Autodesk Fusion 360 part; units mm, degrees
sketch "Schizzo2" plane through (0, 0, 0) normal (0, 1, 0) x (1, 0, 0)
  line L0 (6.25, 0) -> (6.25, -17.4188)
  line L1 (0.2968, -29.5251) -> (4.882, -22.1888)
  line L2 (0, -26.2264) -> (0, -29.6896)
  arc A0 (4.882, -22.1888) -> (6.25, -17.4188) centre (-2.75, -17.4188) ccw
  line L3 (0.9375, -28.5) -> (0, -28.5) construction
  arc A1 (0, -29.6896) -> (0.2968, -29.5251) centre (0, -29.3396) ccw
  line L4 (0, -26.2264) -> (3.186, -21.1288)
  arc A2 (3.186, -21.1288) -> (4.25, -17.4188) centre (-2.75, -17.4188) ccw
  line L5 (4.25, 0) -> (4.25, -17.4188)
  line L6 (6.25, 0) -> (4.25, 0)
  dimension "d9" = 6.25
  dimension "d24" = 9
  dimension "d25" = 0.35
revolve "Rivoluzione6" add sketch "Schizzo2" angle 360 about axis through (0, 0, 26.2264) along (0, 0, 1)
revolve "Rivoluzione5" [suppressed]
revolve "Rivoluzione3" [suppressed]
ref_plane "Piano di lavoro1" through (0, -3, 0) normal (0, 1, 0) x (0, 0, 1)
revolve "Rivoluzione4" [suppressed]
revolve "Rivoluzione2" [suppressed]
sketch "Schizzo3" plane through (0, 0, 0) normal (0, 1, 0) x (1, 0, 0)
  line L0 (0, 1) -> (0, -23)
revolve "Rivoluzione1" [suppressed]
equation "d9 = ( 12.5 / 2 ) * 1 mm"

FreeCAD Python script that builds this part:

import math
import FreeCAD as App
import Part
import Sketcher
Q = App.Units.Quantity

doc = App.newDocument("Part")
body = doc.addObject("PartDesign::Body", "Body")

# Sketch on XZ plane
sketch1 = body.newObject("Sketcher::SketchObject", "Sketch")
sketch1.AttachmentSupport = (doc.getObject("XZ_Plane"), [""])
sketch1.MapMode = "FlatFace"
sketch1.addGeometry([
    Part.LineSegment(App.Vector(6.25, 17.42, 0), App.Vector(6.25, 0, 0)),  # 0
    Part.LineSegment(App.Vector(6.25, 0, 0), App.Vector(4.25, 0, 0)),  # 1
    Part.LineSegment(App.Vector(4.25, 0, 0), App.Vector(4.25, 17.42, 0)),  # 2
    Part.ArcOfCircle(Part.Circle(App.Vector(-2.75, 17.42, 0), App.Vector(0, 0, 1), 7), math.radians(0), math.radians(32)),  # 3
    Part.LineSegment(App.Vector(3.19, 21.13, 0), App.Vector(0, 26.23, 0)),  # 4
    Part.LineSegment(App.Vector(0, 26.23, 0), App.Vector(0, 29.69, 0)),  # 5
    Part.ArcOfCircle(Part.Circle(App.Vector(0, 29.34, 0), App.Vector(0, 0, 1), 0.35), math.radians(32), math.radians(90)),  # 6
    Part.LineSegment(App.Vector(0.3, 29.53, 0), App.Vector(4.88, 22.19, 0)),  # 7
    Part.ArcOfCircle(Part.Circle(App.Vector(-2.75, 17.42, 0), App.Vector(0, 0, 1), 9), math.radians(0), math.radians(32)),  # 8
], False)
sketch1.addConstraint([
    Sketcher.Constraint("Coincident", 0, 2, 1, 1),
    Sketcher.Constraint("Coincident", 1, 2, 2, 1),
    Sketcher.Constraint("Tangent", 2, 2, 3, 1),
    Sketcher.Constraint("Tangent", 3, 2, 4, 1),
    Sketcher.Constraint("Coincident", 4, 2, 5, 1),
    Sketcher.Constraint("Coincident", 5, 2, 6, 2),
    Sketcher.Constraint("Tangent", 6, 1, 7, 1),
    Sketcher.Constraint("Tangent", 7, 2, 8, 2),
    Sketcher.Constraint("Tangent", 8, 1, 0, 1),
    Sketcher.Constraint("Vertical", 0),
    Sketcher.Constraint("Horizontal", 1),
    Sketcher.Constraint("Vertical", 2),
    Sketcher.Constraint("Vertical", 5),
    Sketcher.Constraint("Coincident", 8, 3, 3, 3),
    Sketcher.Constraint("PointOnObject", 6, 3, -2),
    Sketcher.Constraint("PointOnObject", 0, 2, -1),
    Sketcher.Constraint("PointOnObject", 4, 2, -2),
    Sketcher.Constraint("Parallel", 4, 7),
    Sketcher.Constraint("Radius", 8, Q("9 mm")),
    Sketcher.Constraint("Radius", 6, Q("0.35 mm")),
    Sketcher.Constraint("Radius", 3, Q("7 mm")),
    Sketcher.Constraint("DistanceX", -1, 1, 0, 2, Q("6.25 mm")),
    Sketcher.Constraint("DistanceY", 2, 2, 3, 2, Q("3.71 mm")),
    Sketcher.Constraint("DistanceY", 0, 2, 0, 1, Q("17.4188 mm")),
])
revolution = body.newObject("PartDesign::Revolution", "Revolution")
revolution.Profile = sketch1
revolution.ReferenceAxis = (sketch1, ["V_Axis"])
revolution.Angle = 360

doc.recompute()
